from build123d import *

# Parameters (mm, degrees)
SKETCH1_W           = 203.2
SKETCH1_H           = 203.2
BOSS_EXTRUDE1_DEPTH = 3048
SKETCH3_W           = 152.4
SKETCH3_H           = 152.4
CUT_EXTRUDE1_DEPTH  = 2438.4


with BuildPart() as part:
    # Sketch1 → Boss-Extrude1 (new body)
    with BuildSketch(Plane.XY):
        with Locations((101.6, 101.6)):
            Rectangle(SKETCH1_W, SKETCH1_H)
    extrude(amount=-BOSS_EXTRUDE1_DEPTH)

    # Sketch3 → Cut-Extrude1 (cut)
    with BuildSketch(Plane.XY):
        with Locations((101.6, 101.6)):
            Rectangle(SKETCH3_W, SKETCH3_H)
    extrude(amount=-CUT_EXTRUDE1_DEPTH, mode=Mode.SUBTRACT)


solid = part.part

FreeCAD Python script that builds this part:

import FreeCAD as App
import Part
import Sketcher
from FreeCAD import Vector
Q = App.Units.Quantity


def add_polygon(sketch, points):
    """Adds a closed chain of lines whose ends are joined by coincident constraints."""
    first, n = sketch.GeometryCount, len(points)
    for a, b in zip(points, points[1:] + points[:1]):
        sketch.addGeometry(Part.LineSegment(App.Vector(*a, 0), App.Vector(*b, 0)), False)
    for i in range(n):
        sketch.addConstraint(Sketcher.Constraint("Coincident", first + i, 2, first + (i + 1) % n, 1))

doc = App.newDocument("Part")
body = doc.addObject("PartDesign::Body", "Body")

# Sketch on XY plane
sketch1 = body.newObject("Sketcher::SketchObject", "Sketch")
sketch1.AttachmentSupport = (doc.getObject("XY_Plane"), [""])
sketch1.MapMode = "FlatFace"
add_polygon(sketch1, [(0, 203), (0, 0), (203, 0), (203, 203)])  # lines 0-3
sketch1.addConstraint([
    Sketcher.Constraint("Vertical", 0),
    Sketcher.Constraint("Horizontal", 1),
    Sketcher.Constraint("Vertical", 2),
    Sketcher.Constraint("Horizontal", 3),
    Sketcher.Constraint("Coincident", 0, 2, -1, 1),
    Sketcher.Constraint("Equal", 3, 0),
    Sketcher.Constraint("DistanceX", 1, 1, 1, 2, Q("8 in")),
])
pad1 = body.newObject("PartDesign::Pad", "Pad")
pad1.Profile = sketch1
pad1.Length = Q("120 in")
pad1.Reversed = True

# Sketch on XY plane
sketch2 = body.newObject("Sketcher::SketchObject", "Sketch001")
sketch2.AttachmentSupport = (doc.getObject("XY_Plane"), [""])
sketch2.MapMode = "FlatFace"
add_polygon(sketch2, [(25, 178), (25, 25), (178, 25), (178, 178)])  # lines 0-3
sketch2.addConstraint([
    Sketcher.Constraint("Vertical", 0),
    Sketcher.Constraint("Horizontal", 1),
    Sketcher.Constraint("Vertical", 2),
    Sketcher.Constraint("Horizontal", 3),
    Sketcher.Constraint("Equal", 3, 0),
    Sketcher.Constraint("DistanceX", 1, 1, 1, 2, Q("6 in")),
    Sketcher.Constraint("DistanceX", -1, 1, 0, 2, Q("1 in")),
    Sketcher.Constraint("DistanceY", -1, 1, 0, 2, Q("1 in")),
])
pocket1 = body.newObject("PartDesign::Pocket", "Pocket")
pocket1.Profile = sketch2
pocket1.Length = Q("96 in")

doc.recompute()
